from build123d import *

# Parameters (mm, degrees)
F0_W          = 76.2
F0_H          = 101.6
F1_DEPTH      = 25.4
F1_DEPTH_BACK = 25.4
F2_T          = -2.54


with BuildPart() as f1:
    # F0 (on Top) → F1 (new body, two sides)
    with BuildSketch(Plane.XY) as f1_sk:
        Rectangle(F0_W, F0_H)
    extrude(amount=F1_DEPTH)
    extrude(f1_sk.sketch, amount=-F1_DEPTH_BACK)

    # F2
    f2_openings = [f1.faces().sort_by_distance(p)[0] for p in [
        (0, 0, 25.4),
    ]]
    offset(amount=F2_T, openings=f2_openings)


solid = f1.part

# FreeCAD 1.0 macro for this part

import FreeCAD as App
import Part
import Sketcher
Q = App.Units.Quantity


def faces_at(feature, points):
    """Names of the faces that lie closest to the given points."""
    faces = feature.Shape.Faces
    near = lambda p: min(range(len(faces)), key=lambda i: faces[i].distToShape(Part.Vertex(*p))[0])
    return sorted({f"Face{near(p) + 1}" for p in points})


def add_polygon(sketch, points):
    """Adds a closed chain of lines whose ends are joined by coincident constraints."""
    first, n = sketch.GeometryCount, len(points)
    for a, b in zip(points, points[1:] + points[:1]):
        sketch.addGeometry(Part.LineSegment(App.Vector(*a, 0), App.Vector(*b, 0)), False)
    for i in range(n):
        sketch.addConstraint(Sketcher.Constraint("Coincident", first + i, 2, first + (i + 1) % n, 1))

doc = App.newDocument("Part")
body = doc.addObject("PartDesign::Body", "Body")

# Sketch on XY plane
sketch1 = body.newObject("Sketcher::SketchObject", "Sketch")
sketch1.AttachmentSupport = (doc.getObject("XY_Plane"), [""])
sketch1.MapMode = "FlatFace"
add_polygon(sketch1, [(-38, 51), (-38, -51), (38, -51), (38, 51)])  # lines 0-3
sketch1.addConstraint([
    Sketcher.Constraint("Vertical", 0),
    Sketcher.Constraint("Horizontal", 1),
    Sketcher.Constraint("Vertical", 2),
    Sketcher.Constraint("Horizontal", 3),
    Sketcher.Constraint("Symmetric", 0, 2, 2, 2, -1, 1),
    Sketcher.Constraint("DistanceX", 1, 1, 1, 2, Q("3 in")),
    Sketcher.Constraint("DistanceY", 0, 2, 0, 1, Q("4 in")),
])
pad1 = body.newObject("PartDesign::Pad", "Pad")
pad1.Profile = sketch1
pad1.Type = "TwoLengths"
pad1.Length = Q("1 in")
pad1.Length2 = Q("1 in")
doc.recompute()

thickness = body.newObject("PartDesign::Thickness", "Thickness")
thickness.Base = (pad1, faces_at(pad1, [(0, 0, 25.4)]))
thickness.Value = Q("0.1 in")
thickness.Reversed = True
thickness.Join = "Arc"

doc.recompute()
